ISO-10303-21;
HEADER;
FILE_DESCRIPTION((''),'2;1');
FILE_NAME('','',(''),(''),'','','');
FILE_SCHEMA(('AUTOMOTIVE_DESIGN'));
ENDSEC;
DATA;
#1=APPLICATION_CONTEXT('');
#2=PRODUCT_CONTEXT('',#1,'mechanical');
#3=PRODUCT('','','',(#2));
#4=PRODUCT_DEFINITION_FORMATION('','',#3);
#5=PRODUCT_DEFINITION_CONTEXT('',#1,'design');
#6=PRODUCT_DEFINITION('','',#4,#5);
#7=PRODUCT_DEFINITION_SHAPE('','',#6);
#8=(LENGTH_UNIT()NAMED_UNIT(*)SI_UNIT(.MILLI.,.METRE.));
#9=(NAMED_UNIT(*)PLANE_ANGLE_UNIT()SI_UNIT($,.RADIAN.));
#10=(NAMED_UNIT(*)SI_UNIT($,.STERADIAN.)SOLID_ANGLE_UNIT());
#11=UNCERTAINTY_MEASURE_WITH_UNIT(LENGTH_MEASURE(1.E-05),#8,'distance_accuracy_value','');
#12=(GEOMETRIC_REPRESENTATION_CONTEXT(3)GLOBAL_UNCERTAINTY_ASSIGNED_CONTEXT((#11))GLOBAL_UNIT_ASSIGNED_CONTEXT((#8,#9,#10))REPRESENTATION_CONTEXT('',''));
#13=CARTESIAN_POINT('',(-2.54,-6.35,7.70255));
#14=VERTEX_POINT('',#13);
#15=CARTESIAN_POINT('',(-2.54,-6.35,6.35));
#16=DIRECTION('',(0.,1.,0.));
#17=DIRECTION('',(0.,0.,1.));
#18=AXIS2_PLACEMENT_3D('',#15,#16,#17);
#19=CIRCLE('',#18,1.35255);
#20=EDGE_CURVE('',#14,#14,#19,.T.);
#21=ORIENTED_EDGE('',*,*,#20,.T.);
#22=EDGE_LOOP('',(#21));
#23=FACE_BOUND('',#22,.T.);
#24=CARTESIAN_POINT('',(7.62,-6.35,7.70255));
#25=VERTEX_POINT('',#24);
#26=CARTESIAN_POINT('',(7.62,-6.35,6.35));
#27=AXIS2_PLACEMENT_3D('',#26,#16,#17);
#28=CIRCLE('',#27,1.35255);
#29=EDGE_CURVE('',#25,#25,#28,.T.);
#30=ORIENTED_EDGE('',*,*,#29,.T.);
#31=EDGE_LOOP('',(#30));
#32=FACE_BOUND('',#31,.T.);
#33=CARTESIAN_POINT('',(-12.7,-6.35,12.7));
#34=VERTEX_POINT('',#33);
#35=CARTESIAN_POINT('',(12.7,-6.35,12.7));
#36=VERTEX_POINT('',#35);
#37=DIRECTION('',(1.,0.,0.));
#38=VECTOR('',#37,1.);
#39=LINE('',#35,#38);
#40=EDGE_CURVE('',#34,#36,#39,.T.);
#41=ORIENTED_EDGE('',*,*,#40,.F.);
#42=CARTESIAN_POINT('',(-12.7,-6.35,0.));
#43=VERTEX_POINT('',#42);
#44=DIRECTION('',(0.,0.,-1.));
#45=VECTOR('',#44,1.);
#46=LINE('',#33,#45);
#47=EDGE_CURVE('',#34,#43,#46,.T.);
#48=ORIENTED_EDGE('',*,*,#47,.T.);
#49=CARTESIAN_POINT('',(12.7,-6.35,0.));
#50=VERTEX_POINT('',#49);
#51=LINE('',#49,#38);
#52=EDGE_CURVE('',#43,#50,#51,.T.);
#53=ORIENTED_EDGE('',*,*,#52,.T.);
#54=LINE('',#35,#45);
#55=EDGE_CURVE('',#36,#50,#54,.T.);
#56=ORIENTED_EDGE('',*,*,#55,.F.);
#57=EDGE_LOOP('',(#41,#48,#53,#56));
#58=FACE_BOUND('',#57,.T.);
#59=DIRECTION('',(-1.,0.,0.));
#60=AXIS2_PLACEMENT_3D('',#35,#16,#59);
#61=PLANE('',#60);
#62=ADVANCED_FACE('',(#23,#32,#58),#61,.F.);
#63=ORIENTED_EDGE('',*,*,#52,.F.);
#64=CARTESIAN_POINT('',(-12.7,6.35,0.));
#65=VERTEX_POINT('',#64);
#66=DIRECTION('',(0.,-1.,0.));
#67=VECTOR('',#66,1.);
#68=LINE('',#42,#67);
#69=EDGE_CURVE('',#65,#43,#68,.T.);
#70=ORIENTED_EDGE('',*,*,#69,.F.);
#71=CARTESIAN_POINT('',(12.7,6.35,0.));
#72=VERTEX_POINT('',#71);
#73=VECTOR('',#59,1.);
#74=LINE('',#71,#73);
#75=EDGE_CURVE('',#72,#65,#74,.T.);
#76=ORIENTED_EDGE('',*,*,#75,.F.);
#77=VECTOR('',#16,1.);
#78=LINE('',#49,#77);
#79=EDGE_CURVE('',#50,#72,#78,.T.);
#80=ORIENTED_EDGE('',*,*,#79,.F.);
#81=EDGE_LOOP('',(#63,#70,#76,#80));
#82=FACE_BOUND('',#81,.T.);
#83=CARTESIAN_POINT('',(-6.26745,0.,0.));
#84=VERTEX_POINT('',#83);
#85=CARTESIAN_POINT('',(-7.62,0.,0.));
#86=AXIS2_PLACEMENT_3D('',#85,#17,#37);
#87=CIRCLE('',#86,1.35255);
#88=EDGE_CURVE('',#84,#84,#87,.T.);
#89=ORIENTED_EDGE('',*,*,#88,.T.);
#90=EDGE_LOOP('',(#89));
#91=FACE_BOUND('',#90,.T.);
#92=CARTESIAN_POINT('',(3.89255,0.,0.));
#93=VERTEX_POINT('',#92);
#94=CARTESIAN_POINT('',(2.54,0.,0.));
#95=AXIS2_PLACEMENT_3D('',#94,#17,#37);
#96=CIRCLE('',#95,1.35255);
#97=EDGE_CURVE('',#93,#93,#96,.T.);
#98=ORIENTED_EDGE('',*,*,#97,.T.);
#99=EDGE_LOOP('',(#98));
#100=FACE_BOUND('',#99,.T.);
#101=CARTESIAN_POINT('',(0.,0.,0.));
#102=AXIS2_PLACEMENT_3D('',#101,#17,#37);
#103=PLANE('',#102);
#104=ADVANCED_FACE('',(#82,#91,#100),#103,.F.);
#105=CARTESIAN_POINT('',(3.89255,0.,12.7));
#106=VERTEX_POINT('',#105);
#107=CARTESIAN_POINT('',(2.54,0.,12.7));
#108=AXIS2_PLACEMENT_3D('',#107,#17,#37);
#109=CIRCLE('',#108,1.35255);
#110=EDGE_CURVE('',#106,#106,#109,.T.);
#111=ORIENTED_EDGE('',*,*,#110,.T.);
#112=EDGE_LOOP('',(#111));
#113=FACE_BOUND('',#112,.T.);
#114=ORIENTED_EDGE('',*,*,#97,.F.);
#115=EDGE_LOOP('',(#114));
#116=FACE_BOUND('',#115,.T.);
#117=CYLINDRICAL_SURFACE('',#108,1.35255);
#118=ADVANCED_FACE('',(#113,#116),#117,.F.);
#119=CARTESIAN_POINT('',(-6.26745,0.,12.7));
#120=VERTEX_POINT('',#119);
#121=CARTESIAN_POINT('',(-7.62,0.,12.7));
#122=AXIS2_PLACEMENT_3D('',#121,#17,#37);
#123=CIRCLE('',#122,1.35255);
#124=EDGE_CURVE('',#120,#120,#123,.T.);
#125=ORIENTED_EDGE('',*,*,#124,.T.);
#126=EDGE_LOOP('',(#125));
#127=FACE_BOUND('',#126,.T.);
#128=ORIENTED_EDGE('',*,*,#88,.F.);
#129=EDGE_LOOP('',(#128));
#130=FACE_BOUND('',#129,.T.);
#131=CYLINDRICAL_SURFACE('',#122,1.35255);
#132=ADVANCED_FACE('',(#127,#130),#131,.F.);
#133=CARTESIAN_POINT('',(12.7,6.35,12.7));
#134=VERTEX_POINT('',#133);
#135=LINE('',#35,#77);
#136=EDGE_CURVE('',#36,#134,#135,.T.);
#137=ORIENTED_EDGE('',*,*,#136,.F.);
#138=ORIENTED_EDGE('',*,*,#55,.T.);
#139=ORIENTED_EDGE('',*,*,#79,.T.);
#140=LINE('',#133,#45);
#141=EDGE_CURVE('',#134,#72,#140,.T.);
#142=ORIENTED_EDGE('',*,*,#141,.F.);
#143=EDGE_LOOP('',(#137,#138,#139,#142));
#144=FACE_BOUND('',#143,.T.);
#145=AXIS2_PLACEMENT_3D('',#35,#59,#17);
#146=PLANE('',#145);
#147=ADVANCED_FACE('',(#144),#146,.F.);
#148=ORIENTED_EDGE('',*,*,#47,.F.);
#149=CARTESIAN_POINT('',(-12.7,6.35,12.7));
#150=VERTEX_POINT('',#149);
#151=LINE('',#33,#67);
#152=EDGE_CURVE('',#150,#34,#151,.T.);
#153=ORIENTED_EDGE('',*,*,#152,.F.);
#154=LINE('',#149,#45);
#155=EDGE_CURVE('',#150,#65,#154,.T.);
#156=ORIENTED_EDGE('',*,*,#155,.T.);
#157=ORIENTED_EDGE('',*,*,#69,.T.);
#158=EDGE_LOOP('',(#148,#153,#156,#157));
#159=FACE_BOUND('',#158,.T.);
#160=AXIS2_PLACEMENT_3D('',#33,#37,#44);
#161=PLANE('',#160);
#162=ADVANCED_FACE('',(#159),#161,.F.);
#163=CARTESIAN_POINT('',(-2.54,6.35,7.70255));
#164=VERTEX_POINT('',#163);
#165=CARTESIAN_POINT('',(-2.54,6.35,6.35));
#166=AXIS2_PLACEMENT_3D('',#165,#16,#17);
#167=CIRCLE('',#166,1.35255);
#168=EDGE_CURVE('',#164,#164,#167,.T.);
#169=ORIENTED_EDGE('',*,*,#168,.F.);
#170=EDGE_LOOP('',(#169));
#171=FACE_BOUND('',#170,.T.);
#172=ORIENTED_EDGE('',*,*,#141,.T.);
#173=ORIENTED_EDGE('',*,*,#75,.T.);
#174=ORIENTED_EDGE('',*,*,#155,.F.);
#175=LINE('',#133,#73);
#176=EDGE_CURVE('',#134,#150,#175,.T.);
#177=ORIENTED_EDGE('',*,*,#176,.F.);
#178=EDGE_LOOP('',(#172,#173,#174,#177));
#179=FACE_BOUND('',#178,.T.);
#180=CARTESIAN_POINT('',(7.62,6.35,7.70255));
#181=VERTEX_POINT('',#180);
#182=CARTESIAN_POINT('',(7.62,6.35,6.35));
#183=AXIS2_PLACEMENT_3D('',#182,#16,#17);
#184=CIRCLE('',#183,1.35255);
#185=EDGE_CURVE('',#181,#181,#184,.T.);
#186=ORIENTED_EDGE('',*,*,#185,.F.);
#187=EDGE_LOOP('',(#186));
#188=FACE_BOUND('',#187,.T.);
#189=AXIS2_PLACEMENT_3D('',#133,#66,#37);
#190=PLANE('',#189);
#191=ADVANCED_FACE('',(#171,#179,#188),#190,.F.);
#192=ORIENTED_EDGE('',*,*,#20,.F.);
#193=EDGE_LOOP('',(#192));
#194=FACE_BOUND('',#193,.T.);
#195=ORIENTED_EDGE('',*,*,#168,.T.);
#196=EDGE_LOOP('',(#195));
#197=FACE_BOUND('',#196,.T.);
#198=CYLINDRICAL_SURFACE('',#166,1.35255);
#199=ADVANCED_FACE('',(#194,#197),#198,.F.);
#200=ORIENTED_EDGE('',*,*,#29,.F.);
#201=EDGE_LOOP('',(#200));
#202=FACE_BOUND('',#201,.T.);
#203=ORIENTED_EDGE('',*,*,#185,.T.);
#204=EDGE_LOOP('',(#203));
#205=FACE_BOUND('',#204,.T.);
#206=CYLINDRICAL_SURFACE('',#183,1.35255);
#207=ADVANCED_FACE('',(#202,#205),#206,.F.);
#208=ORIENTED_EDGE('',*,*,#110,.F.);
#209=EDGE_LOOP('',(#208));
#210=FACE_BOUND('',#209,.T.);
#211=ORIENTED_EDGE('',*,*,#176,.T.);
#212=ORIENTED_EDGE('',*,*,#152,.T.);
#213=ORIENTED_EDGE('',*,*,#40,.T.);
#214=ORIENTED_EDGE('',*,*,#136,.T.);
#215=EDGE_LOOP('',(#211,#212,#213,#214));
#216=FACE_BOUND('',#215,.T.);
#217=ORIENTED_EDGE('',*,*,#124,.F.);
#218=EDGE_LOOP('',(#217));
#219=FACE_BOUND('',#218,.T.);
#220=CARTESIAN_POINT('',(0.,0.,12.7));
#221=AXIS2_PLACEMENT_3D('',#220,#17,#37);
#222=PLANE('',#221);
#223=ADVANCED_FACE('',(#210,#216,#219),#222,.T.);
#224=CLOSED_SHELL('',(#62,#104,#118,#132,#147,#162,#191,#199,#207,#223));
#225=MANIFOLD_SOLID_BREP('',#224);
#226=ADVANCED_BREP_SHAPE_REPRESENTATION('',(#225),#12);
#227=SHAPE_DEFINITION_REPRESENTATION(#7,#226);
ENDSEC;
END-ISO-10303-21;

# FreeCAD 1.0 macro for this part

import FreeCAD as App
import Part
import Sketcher

V = App.Vector
Q = App.Units.Quantity

doc = App.newDocument("Part")
body = doc.addObject("PartDesign::Body", "Body")

sketch1 = doc.addObject("Sketcher::SketchObject", "Sketch")
body.addObject(sketch1)
sketch1.AttachmentSupport = (doc.XY_Plane, [""])
sketch1.MapMode = "FlatFace"
sketch1.addGeometry([
    Part.LineSegment(V(-13, 6, 0), V(-13, -6, 0)),
    Part.LineSegment(V(-13, -6, 0), V(13, -6, 0)),
    Part.LineSegment(V(13, -6, 0), V(13, 6, 0)),
    Part.LineSegment(V(13, 6, 0), V(-13, 6, 0)),
], False)
sketch1.addConstraint([
    Sketcher.Constraint("Coincident", 0, 2, 1, 1),
    Sketcher.Constraint("Coincident", 1, 2, 2, 1),
    Sketcher.Constraint("Coincident", 2, 2, 3, 1),
    Sketcher.Constraint("Coincident", 3, 2, 0, 1),
    Sketcher.Constraint("Vertical", 0),
    Sketcher.Constraint("Horizontal", 1),
    Sketcher.Constraint("Vertical", 2),
    Sketcher.Constraint("Horizontal", 3),
    Sketcher.Constraint("Symmetric", 0, 2, 2, 2, -1, 1),
    Sketcher.Constraint("DistanceX", 1, 1, 1, 2, Q("1 in")),
    Sketcher.Constraint("DistanceY", 0, 2, 0, 1, Q("0.5 in")),
])
pad1 = doc.addObject("PartDesign::Pad", "Pad")
body.addObject(pad1)
pad1.Profile = sketch1
pad1.Length = Q("0.5 in")

sketch2 = doc.addObject("Sketcher::SketchObject", "Sketch001")
body.addObject(sketch2)
sketch2.AttachmentSupport = (doc.XZ_Plane, [""])
sketch2.MapMode = "FlatFace"
sketch2.AttachmentOffset = App.Placement(V(0, 0, -0.25 * 25.4), App.Rotation())
sketch2.addGeometry([
    Part.Circle(V(-2.5, 6.3, 0), V(0, 0, 1), 1.4),
    Part.Circle(V(7.6, 6.3, 0), V(0, 0, 1), 1.4),
], False)
sketch2.addConstraint([
    Sketcher.Constraint("Equal", 0, 1),
    Sketcher.Constraint("Horizontal", 0, 3, 1, 3),
    Sketcher.Constraint("Diameter", 0, Q("0.1065 in")),
    Sketcher.Constraint("DistanceX", 0, 3, -1, 1, Q("0.1 in")),
    Sketcher.Constraint("DistanceX", -1, 1, 1, 3, Q("0.3 in")),
    Sketcher.Constraint("DistanceY", -1, 1, 0, 3, Q("0.25 in")),
])
doc.recompute()
hole = doc.addObject("PartDesign::Hole", "Hole")
body.addObject(hole)
hole.Profile = sketch2
hole.ThreadType = "None"
hole.Diameter = Q("0.1065 in")
hole.DepthType = "ThroughAll"
hole.Reversed = True

sketch3 = doc.addObject("Sketcher::SketchObject", "Sketch002")
body.addObject(sketch3)
sketch3.AttachmentSupport = (doc.XY_Plane, [""])
sketch3.MapMode = "FlatFace"
sketch3.AttachmentOffset = App.Placement(V(0, 0, 0.5 * 25.4), App.Rotation())
sketch3.addGeometry([
    Part.Circle(V(-7.6, 0, 0), V(0, 0, 1), 1.4),
    Part.Circle(V(2.5, 0, 0), V(0, 0, 1), 1.4),
], False)
sketch3.addConstraint([
    Sketcher.Constraint("Equal", 0, 1),
    Sketcher.Constraint("PointOnObject", 0, 3, -1),
    Sketcher.Constraint("PointOnObject", 1, 3, -1),
    Sketcher.Constraint("Diameter", 0, Q("0.1065 in")),
    Sketcher.Constraint("DistanceX", 0, 3, -1, 1, Q("0.3 in")),
    Sketcher.Constraint("DistanceX", -1, 1, 1, 3, Q("0.1 in")),
])
doc.recompute()
hole2 = doc.addObject("PartDesign::Hole", "Hole001")
body.addObject(hole2)
hole2.Profile = sketch3
hole2.ThreadType = "None"
hole2.Diameter = Q("0.1065 in")
hole2.DepthType = "ThroughAll"

doc.recompute()
